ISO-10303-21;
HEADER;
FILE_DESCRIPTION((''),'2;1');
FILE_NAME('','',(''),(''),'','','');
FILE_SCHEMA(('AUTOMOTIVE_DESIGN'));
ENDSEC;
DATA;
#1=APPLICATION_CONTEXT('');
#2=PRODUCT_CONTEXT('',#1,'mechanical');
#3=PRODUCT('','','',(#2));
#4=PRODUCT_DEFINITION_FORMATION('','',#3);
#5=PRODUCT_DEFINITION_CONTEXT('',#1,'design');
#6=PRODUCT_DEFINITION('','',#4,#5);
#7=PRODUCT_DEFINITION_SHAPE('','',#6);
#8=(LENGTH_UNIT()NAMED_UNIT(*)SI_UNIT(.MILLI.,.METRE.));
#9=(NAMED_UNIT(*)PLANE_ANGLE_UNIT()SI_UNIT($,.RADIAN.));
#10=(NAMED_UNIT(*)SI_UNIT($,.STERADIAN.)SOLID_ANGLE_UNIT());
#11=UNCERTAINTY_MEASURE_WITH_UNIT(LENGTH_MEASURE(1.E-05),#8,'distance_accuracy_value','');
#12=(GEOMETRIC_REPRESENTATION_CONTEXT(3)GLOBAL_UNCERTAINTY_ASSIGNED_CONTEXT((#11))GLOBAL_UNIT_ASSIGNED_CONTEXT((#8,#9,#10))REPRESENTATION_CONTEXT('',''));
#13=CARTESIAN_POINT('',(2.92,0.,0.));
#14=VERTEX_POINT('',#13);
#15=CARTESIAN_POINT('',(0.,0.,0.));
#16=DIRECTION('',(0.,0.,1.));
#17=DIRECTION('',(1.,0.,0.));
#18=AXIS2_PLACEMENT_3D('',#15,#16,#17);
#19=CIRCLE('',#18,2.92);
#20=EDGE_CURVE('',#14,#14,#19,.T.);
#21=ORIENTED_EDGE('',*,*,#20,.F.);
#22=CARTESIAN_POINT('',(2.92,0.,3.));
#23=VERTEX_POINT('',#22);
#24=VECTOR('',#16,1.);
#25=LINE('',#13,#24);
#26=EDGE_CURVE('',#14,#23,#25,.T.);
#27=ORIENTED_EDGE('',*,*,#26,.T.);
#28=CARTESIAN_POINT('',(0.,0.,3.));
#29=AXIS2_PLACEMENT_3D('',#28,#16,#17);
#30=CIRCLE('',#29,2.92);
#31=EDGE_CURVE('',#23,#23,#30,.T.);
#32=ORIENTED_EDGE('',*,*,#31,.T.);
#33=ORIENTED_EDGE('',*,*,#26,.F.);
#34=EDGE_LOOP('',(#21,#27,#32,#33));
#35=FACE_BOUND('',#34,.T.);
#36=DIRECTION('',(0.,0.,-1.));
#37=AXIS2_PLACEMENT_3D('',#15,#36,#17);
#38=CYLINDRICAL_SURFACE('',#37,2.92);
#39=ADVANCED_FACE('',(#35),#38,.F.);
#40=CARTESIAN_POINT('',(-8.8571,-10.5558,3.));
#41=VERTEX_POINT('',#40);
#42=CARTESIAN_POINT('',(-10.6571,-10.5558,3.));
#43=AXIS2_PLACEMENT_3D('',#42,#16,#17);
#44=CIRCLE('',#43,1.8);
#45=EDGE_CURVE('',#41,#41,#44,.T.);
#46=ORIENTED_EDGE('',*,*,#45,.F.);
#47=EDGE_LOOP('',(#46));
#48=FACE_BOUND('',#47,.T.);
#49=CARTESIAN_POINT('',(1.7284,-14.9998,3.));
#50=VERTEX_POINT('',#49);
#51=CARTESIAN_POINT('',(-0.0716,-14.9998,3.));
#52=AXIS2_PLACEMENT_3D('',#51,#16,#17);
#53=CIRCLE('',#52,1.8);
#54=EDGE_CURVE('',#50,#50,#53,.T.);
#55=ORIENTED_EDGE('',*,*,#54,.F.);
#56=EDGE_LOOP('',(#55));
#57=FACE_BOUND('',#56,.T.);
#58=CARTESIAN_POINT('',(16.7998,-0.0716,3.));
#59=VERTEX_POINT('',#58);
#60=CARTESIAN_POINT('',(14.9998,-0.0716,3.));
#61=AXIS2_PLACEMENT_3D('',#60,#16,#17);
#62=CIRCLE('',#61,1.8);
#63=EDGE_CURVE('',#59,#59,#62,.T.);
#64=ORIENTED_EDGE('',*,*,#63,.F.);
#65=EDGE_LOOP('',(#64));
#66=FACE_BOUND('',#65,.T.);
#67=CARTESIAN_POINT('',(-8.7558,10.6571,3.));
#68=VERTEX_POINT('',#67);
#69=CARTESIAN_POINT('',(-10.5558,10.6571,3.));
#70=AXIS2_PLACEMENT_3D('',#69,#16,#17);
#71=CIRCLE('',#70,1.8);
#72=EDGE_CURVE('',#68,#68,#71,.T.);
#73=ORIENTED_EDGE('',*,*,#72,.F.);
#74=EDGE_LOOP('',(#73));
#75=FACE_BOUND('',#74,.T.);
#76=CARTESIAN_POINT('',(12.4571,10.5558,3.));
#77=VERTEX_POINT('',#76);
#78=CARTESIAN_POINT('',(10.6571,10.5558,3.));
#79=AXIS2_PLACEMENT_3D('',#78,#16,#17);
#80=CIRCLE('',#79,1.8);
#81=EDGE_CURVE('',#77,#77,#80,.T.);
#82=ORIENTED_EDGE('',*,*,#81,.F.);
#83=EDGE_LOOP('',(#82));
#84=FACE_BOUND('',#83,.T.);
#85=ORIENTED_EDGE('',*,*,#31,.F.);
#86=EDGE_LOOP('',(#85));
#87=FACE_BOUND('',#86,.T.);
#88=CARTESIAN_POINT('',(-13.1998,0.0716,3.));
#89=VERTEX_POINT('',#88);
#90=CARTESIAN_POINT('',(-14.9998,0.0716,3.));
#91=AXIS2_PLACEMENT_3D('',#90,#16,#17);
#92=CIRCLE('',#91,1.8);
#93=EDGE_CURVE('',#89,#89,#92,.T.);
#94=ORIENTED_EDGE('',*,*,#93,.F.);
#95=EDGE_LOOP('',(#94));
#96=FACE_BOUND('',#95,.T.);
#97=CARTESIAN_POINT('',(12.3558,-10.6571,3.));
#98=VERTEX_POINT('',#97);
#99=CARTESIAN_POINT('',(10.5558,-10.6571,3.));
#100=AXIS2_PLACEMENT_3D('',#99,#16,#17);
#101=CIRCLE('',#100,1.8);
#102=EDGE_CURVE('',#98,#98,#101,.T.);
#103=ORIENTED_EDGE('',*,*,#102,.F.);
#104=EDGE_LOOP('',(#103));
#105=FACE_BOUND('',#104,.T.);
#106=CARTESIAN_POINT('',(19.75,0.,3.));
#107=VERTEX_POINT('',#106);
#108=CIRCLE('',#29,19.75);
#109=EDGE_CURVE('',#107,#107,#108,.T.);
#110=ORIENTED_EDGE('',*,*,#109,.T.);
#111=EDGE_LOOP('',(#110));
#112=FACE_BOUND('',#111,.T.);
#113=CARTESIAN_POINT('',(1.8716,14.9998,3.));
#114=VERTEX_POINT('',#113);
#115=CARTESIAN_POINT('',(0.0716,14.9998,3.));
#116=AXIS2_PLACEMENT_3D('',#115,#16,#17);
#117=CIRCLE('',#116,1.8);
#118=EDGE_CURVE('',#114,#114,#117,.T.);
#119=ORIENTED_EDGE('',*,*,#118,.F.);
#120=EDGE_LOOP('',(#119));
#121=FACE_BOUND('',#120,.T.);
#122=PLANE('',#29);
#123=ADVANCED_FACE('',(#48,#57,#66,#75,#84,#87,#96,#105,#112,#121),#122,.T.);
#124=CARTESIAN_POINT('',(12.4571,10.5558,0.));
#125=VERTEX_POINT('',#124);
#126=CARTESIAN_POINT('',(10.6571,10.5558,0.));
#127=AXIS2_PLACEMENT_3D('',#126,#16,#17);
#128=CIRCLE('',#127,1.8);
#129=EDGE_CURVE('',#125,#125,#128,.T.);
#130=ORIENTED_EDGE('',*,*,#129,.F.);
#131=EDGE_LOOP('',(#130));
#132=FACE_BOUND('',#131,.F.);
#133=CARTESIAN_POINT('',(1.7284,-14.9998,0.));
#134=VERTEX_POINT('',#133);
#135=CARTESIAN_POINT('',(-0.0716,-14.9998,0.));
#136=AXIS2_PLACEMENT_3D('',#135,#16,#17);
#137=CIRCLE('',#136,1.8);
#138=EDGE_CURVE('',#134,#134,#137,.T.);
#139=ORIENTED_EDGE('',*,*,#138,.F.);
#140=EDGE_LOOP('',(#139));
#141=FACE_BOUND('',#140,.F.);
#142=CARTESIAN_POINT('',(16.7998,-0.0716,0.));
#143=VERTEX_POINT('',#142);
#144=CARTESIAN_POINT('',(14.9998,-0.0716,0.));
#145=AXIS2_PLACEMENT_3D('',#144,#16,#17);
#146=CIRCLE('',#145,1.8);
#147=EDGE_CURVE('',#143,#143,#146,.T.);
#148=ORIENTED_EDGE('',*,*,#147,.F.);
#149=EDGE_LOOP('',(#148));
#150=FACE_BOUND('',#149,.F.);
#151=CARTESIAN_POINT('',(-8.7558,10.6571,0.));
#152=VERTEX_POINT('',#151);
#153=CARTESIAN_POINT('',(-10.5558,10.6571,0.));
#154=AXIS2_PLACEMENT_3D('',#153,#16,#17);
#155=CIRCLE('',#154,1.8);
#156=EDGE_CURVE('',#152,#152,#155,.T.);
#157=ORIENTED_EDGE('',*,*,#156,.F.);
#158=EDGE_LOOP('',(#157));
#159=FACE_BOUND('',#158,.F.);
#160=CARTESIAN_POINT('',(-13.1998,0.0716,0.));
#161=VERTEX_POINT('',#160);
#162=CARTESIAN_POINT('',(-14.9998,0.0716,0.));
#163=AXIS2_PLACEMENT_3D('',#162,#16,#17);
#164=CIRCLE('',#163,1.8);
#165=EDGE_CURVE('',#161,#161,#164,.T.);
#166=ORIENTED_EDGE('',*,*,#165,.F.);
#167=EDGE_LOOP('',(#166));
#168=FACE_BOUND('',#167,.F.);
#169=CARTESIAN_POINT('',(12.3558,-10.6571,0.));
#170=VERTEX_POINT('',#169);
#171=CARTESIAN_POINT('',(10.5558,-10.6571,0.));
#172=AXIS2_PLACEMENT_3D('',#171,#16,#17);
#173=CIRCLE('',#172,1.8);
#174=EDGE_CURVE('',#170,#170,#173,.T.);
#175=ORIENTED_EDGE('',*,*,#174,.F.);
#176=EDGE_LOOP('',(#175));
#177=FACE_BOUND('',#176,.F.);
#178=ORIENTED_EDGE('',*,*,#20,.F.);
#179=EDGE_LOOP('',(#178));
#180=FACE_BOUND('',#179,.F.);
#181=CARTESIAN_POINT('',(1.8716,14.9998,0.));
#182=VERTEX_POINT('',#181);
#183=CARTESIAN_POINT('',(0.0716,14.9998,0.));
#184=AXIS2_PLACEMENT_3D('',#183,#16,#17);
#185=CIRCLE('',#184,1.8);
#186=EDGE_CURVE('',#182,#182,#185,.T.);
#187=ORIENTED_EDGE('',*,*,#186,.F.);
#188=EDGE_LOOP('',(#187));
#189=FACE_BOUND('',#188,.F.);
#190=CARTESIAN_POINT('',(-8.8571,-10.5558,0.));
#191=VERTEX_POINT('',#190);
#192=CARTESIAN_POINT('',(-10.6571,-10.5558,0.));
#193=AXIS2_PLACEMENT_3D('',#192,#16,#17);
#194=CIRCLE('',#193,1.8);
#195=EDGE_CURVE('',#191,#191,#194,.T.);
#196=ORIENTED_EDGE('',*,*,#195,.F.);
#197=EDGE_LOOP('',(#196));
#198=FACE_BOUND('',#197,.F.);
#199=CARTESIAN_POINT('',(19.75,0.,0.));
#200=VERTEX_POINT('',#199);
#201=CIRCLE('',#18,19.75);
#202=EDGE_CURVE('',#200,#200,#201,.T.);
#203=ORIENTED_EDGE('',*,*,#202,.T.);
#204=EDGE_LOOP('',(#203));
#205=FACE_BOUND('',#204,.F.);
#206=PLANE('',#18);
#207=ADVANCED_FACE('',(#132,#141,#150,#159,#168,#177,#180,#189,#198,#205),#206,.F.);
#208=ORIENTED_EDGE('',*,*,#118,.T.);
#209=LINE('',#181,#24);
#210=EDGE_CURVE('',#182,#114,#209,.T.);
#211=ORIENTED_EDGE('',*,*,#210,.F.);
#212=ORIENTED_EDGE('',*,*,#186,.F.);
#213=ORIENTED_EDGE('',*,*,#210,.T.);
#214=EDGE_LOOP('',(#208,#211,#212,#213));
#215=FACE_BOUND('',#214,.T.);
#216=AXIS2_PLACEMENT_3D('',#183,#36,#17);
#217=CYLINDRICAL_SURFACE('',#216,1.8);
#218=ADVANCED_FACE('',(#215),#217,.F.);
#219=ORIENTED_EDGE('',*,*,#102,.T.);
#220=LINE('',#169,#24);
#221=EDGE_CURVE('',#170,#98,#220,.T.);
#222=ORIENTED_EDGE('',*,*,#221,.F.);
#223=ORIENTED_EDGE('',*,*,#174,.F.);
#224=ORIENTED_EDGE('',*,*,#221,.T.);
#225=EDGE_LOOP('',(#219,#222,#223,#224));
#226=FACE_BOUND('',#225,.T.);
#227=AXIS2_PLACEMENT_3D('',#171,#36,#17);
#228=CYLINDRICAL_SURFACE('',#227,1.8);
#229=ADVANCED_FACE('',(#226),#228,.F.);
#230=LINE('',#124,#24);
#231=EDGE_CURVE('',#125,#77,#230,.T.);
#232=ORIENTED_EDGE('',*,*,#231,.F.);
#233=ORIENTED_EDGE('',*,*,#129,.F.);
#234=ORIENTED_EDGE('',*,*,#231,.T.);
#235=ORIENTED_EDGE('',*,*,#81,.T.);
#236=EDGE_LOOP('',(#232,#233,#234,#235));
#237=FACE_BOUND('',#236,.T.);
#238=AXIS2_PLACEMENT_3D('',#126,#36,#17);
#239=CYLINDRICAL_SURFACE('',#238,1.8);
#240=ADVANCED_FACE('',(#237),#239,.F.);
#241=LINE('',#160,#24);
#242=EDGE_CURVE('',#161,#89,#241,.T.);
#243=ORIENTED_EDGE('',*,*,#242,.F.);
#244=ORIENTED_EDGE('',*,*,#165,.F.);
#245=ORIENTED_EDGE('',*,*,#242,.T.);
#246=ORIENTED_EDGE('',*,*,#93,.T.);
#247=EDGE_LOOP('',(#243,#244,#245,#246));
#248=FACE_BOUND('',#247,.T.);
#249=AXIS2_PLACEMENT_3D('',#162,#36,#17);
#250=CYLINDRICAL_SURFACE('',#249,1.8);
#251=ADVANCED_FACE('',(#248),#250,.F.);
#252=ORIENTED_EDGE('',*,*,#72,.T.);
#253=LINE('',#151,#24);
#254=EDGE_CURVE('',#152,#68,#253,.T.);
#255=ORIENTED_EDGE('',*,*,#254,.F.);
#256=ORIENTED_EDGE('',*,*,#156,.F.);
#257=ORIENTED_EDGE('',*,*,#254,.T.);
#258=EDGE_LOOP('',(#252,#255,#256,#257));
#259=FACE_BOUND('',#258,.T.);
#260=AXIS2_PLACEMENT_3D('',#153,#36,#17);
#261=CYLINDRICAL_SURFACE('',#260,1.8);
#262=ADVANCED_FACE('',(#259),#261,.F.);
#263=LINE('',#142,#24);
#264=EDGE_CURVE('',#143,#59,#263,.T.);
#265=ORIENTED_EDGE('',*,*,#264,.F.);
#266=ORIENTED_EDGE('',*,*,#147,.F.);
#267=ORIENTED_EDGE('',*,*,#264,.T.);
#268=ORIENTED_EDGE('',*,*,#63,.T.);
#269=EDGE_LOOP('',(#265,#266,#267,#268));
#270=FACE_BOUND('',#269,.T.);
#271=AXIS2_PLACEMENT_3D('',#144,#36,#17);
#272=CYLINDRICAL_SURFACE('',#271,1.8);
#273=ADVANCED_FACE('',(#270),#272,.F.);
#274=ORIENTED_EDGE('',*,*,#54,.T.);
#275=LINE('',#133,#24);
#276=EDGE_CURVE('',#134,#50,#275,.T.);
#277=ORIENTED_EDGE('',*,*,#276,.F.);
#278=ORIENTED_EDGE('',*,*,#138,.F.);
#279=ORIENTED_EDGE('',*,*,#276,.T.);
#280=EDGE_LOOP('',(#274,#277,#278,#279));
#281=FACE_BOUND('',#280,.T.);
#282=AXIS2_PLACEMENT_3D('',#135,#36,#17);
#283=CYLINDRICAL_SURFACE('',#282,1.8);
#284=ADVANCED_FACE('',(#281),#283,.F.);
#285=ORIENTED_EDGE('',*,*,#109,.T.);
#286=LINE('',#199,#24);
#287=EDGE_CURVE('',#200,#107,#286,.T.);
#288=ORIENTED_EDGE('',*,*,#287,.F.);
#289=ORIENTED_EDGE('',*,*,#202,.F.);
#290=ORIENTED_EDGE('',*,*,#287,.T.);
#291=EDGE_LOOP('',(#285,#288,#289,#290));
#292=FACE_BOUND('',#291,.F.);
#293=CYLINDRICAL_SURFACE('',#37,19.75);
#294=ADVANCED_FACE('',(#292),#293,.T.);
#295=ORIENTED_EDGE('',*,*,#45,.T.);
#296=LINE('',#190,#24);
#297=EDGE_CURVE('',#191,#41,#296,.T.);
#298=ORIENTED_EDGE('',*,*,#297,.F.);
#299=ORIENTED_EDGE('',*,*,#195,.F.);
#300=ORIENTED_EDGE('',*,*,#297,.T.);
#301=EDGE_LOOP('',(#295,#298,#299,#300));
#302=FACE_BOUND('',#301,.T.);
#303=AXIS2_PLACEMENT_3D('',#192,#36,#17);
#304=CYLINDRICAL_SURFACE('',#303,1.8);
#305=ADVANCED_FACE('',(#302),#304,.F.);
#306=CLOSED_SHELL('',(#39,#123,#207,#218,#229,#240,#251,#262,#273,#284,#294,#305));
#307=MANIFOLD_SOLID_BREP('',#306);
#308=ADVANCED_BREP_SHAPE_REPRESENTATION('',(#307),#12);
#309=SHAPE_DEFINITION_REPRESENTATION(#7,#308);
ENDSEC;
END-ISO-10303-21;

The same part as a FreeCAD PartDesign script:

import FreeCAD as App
import Part
import Sketcher

V = App.Vector

doc = App.newDocument("Part")
body = doc.addObject("PartDesign::Body", "Body")

# Sketch on XY plane
sketch1 = doc.addObject("Sketcher::SketchObject", "Sketch")
body.addObject(sketch1)
sketch1.AttachmentSupport = (doc.XY_Plane, [""])
sketch1.MapMode = "FlatFace"
sketch1.addGeometry([
    Part.Circle(V(0, 0, 0), V(0, 0, 1), 19.8),  # 0
    Part.Circle(V(-10.7, -10.6, 0), V(0, 0, 1), 1.8),  # 1
    Part.Circle(V(-0.1, -15, 0), V(0, 0, 1), 1.8),  # 2
    Part.Circle(V(10.6, -10.7, 0), V(0, 0, 1), 1.8),  # 3
    Part.Circle(V(15, -0.1, 0), V(0, 0, 1), 1.8),  # 4
    Part.Circle(V(-15, 0.1, 0), V(0, 0, 1), 1.8),  # 5
    Part.Circle(V(-10.6, 10.7, 0), V(0, 0, 1), 1.8),  # 6
    Part.Circle(V(0.1, 15, 0), V(0, 0, 1), 1.8),  # 7
    Part.Circle(V(10.7, 10.6, 0), V(0, 0, 1), 1.8),  # 8
    Part.Circle(V(0, 0, 0), V(0, 0, 1), 2.9),  # 9
], False)
sketch1.addConstraint([
    Sketcher.Constraint("Coincident", 0, 3, -1, 1),
    Sketcher.Constraint("Coincident", 9, 3, -1, 1),
    Sketcher.Constraint("Equal", 1, 2),
    Sketcher.Constraint("Equal", 2, 3),
    Sketcher.Constraint("Equal", 3, 4),
    Sketcher.Constraint("Equal", 4, 5),
    Sketcher.Constraint("Equal", 5, 6),
    Sketcher.Constraint("Equal", 6, 7),
    Sketcher.Constraint("Equal", 7, 8),
    Sketcher.Constraint("Symmetric", 4, 3, 5, 3, -1, 1),
    Sketcher.Constraint("Symmetric", 3, 3, 6, 3, -1, 1),
    Sketcher.Constraint("Symmetric", 2, 3, 7, 3, -1, 1),
    Sketcher.Constraint("Symmetric", 1, 3, 8, 3, -1, 1),
    Sketcher.Constraint("Diameter", 0, 39.5),
    Sketcher.Constraint("Diameter", 1, 3.6),
    Sketcher.Constraint("Diameter", 9, 5.84),
    Sketcher.Constraint("DistanceX", 1, 3, -1, 1, 10.657),
    Sketcher.Constraint("DistanceY", 3, 3, -1, 1, 10.657),
    Sketcher.Constraint("DistanceY", 2, 3, 1, 3, 4.444),
    Sketcher.Constraint("DistanceX", 1, 3, 3, 3, 21.213),
    Sketcher.Constraint("DistanceX", 3, 3, 4, 3, 4.444),
    Sketcher.Constraint("DistanceY", 1, 3, 6, 3, 21.213),
    Sketcher.Constraint("DistanceX", 2, 3, -1, 1, 0.0716),
    Sketcher.Constraint("DistanceY", 4, 3, -1, 1, 0.0716),
])
pad1 = doc.addObject("PartDesign::Pad", "Pad")
body.addObject(pad1)
pad1.Profile = sketch1
pad1.Length = 3

doc.recompute()
